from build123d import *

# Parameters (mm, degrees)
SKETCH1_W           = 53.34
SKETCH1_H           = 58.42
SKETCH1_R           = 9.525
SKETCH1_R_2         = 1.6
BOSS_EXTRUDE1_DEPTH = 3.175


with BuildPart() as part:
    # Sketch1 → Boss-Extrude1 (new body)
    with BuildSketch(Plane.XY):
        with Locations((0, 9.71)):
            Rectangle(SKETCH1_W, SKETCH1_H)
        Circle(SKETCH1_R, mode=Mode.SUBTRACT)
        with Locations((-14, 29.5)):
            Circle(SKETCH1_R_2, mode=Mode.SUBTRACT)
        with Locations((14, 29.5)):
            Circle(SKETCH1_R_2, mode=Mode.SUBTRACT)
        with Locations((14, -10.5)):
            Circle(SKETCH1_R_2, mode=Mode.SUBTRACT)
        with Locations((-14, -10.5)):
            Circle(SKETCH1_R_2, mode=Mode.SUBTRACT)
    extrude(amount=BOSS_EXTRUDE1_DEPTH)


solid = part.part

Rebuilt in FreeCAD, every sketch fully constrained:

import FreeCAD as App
import Part
import Sketcher
from FreeCAD import Vector
Q = App.Units.Quantity

doc = App.newDocument("Part")
body = doc.addObject("PartDesign::Body", "Body")

# Sketch on XY plane
sketch1 = body.newObject("Sketcher::SketchObject", "Sketch")
sketch1.AttachmentSupport = (doc.getObject("XY_Plane"), [""])
sketch1.MapMode = "FlatFace"
sketch1.addGeometry(Part.LineSegment(Vector(-26.7, 38.9, 0), Vector(-26.7, -19.5, 0)), False)
sketch1.addGeometry(Part.LineSegment(Vector(-26.7, -19.5, 0), Vector(26.7, -19.5, 0)), False)
sketch1.addGeometry(Part.LineSegment(Vector(26.7, -19.5, 0), Vector(26.7, 38.9, 0)), False)
sketch1.addGeometry(Part.LineSegment(Vector(26.7, 38.9, 0), Vector(-26.7, 38.9, 0)), False)
sketch1.addGeometry(Part.Circle(Vector(-14, -10.5, 0), Vector(0, 0, 1), 1.6), False)
sketch1.addGeometry(Part.Circle(Vector(14, -10.5, 0), Vector(0, 0, 1), 1.6), False)
sketch1.addGeometry(Part.Circle(Vector(0, 0, 0), Vector(0, 0, 1), 9.5), False)
sketch1.addGeometry(Part.Circle(Vector(-14, 29.5, 0), Vector(0, 0, 1), 1.6), False)
sketch1.addGeometry(Part.Circle(Vector(14, 29.5, 0), Vector(0, 0, 1), 1.6), False)
sketch1.addConstraint(Sketcher.Constraint("Coincident", 0, 2, 1, 1))
sketch1.addConstraint(Sketcher.Constraint("Coincident", 1, 2, 2, 1))
sketch1.addConstraint(Sketcher.Constraint("Coincident", 2, 2, 3, 1))
sketch1.addConstraint(Sketcher.Constraint("Coincident", 3, 2, 0, 1))
sketch1.addConstraint(Sketcher.Constraint("Vertical", 0))
sketch1.addConstraint(Sketcher.Constraint("Horizontal", 1))
sketch1.addConstraint(Sketcher.Constraint("Vertical", 2))
sketch1.addConstraint(Sketcher.Constraint("Horizontal", 3))
sketch1.addConstraint(Sketcher.Constraint("Coincident", 6, 3, -1, 1))
sketch1.addConstraint(Sketcher.Constraint("Equal", 4, 5))
sketch1.addConstraint(Sketcher.Constraint("Equal", 5, 7))
sketch1.addConstraint(Sketcher.Constraint("Equal", 7, 8))
sketch1.addConstraint(Sketcher.Constraint("Symmetric", 4, 3, 5, 3, -2))
sketch1.addConstraint(Sketcher.Constraint("Symmetric", 7, 3, 8, 3, -2))
sketch1.addConstraint(Sketcher.Constraint("Vertical", 4, 3, 7, 3))
sketch1.addConstraint(Sketcher.Constraint("Diameter", 6, Q("0.75 in")))
sketch1.addConstraint(Sketcher.Constraint("DistanceX", 1, 1, 1, 2, Q("2.1 in")))
sketch1.addConstraint(Sketcher.Constraint("DistanceY", 0, 2, 0, 1, Q("2.3 in")))
sketch1.addConstraint(Sketcher.Constraint("Diameter", 4, 3.2))
sketch1.addConstraint(Sketcher.Constraint("DistanceX", 0, 2, -1, 1, Q("1.05 in")))
sketch1.addConstraint(Sketcher.Constraint("DistanceX", 4, 3, -1, 1, 14.0))
sketch1.addConstraint(Sketcher.Constraint("DistanceY", 4, 3, -1, 1, 10.5))
sketch1.addConstraint(Sketcher.Constraint("DistanceY", -1, 1, 7, 3, 29.5))
sketch1.addConstraint(Sketcher.Constraint("DistanceY", 0, 2, -1, 1, 19.5))
pad1 = body.newObject("PartDesign::Pad", "Pad")
pad1.Profile = sketch1
pad1.Length = Q("0.125 in")

doc.recompute()
